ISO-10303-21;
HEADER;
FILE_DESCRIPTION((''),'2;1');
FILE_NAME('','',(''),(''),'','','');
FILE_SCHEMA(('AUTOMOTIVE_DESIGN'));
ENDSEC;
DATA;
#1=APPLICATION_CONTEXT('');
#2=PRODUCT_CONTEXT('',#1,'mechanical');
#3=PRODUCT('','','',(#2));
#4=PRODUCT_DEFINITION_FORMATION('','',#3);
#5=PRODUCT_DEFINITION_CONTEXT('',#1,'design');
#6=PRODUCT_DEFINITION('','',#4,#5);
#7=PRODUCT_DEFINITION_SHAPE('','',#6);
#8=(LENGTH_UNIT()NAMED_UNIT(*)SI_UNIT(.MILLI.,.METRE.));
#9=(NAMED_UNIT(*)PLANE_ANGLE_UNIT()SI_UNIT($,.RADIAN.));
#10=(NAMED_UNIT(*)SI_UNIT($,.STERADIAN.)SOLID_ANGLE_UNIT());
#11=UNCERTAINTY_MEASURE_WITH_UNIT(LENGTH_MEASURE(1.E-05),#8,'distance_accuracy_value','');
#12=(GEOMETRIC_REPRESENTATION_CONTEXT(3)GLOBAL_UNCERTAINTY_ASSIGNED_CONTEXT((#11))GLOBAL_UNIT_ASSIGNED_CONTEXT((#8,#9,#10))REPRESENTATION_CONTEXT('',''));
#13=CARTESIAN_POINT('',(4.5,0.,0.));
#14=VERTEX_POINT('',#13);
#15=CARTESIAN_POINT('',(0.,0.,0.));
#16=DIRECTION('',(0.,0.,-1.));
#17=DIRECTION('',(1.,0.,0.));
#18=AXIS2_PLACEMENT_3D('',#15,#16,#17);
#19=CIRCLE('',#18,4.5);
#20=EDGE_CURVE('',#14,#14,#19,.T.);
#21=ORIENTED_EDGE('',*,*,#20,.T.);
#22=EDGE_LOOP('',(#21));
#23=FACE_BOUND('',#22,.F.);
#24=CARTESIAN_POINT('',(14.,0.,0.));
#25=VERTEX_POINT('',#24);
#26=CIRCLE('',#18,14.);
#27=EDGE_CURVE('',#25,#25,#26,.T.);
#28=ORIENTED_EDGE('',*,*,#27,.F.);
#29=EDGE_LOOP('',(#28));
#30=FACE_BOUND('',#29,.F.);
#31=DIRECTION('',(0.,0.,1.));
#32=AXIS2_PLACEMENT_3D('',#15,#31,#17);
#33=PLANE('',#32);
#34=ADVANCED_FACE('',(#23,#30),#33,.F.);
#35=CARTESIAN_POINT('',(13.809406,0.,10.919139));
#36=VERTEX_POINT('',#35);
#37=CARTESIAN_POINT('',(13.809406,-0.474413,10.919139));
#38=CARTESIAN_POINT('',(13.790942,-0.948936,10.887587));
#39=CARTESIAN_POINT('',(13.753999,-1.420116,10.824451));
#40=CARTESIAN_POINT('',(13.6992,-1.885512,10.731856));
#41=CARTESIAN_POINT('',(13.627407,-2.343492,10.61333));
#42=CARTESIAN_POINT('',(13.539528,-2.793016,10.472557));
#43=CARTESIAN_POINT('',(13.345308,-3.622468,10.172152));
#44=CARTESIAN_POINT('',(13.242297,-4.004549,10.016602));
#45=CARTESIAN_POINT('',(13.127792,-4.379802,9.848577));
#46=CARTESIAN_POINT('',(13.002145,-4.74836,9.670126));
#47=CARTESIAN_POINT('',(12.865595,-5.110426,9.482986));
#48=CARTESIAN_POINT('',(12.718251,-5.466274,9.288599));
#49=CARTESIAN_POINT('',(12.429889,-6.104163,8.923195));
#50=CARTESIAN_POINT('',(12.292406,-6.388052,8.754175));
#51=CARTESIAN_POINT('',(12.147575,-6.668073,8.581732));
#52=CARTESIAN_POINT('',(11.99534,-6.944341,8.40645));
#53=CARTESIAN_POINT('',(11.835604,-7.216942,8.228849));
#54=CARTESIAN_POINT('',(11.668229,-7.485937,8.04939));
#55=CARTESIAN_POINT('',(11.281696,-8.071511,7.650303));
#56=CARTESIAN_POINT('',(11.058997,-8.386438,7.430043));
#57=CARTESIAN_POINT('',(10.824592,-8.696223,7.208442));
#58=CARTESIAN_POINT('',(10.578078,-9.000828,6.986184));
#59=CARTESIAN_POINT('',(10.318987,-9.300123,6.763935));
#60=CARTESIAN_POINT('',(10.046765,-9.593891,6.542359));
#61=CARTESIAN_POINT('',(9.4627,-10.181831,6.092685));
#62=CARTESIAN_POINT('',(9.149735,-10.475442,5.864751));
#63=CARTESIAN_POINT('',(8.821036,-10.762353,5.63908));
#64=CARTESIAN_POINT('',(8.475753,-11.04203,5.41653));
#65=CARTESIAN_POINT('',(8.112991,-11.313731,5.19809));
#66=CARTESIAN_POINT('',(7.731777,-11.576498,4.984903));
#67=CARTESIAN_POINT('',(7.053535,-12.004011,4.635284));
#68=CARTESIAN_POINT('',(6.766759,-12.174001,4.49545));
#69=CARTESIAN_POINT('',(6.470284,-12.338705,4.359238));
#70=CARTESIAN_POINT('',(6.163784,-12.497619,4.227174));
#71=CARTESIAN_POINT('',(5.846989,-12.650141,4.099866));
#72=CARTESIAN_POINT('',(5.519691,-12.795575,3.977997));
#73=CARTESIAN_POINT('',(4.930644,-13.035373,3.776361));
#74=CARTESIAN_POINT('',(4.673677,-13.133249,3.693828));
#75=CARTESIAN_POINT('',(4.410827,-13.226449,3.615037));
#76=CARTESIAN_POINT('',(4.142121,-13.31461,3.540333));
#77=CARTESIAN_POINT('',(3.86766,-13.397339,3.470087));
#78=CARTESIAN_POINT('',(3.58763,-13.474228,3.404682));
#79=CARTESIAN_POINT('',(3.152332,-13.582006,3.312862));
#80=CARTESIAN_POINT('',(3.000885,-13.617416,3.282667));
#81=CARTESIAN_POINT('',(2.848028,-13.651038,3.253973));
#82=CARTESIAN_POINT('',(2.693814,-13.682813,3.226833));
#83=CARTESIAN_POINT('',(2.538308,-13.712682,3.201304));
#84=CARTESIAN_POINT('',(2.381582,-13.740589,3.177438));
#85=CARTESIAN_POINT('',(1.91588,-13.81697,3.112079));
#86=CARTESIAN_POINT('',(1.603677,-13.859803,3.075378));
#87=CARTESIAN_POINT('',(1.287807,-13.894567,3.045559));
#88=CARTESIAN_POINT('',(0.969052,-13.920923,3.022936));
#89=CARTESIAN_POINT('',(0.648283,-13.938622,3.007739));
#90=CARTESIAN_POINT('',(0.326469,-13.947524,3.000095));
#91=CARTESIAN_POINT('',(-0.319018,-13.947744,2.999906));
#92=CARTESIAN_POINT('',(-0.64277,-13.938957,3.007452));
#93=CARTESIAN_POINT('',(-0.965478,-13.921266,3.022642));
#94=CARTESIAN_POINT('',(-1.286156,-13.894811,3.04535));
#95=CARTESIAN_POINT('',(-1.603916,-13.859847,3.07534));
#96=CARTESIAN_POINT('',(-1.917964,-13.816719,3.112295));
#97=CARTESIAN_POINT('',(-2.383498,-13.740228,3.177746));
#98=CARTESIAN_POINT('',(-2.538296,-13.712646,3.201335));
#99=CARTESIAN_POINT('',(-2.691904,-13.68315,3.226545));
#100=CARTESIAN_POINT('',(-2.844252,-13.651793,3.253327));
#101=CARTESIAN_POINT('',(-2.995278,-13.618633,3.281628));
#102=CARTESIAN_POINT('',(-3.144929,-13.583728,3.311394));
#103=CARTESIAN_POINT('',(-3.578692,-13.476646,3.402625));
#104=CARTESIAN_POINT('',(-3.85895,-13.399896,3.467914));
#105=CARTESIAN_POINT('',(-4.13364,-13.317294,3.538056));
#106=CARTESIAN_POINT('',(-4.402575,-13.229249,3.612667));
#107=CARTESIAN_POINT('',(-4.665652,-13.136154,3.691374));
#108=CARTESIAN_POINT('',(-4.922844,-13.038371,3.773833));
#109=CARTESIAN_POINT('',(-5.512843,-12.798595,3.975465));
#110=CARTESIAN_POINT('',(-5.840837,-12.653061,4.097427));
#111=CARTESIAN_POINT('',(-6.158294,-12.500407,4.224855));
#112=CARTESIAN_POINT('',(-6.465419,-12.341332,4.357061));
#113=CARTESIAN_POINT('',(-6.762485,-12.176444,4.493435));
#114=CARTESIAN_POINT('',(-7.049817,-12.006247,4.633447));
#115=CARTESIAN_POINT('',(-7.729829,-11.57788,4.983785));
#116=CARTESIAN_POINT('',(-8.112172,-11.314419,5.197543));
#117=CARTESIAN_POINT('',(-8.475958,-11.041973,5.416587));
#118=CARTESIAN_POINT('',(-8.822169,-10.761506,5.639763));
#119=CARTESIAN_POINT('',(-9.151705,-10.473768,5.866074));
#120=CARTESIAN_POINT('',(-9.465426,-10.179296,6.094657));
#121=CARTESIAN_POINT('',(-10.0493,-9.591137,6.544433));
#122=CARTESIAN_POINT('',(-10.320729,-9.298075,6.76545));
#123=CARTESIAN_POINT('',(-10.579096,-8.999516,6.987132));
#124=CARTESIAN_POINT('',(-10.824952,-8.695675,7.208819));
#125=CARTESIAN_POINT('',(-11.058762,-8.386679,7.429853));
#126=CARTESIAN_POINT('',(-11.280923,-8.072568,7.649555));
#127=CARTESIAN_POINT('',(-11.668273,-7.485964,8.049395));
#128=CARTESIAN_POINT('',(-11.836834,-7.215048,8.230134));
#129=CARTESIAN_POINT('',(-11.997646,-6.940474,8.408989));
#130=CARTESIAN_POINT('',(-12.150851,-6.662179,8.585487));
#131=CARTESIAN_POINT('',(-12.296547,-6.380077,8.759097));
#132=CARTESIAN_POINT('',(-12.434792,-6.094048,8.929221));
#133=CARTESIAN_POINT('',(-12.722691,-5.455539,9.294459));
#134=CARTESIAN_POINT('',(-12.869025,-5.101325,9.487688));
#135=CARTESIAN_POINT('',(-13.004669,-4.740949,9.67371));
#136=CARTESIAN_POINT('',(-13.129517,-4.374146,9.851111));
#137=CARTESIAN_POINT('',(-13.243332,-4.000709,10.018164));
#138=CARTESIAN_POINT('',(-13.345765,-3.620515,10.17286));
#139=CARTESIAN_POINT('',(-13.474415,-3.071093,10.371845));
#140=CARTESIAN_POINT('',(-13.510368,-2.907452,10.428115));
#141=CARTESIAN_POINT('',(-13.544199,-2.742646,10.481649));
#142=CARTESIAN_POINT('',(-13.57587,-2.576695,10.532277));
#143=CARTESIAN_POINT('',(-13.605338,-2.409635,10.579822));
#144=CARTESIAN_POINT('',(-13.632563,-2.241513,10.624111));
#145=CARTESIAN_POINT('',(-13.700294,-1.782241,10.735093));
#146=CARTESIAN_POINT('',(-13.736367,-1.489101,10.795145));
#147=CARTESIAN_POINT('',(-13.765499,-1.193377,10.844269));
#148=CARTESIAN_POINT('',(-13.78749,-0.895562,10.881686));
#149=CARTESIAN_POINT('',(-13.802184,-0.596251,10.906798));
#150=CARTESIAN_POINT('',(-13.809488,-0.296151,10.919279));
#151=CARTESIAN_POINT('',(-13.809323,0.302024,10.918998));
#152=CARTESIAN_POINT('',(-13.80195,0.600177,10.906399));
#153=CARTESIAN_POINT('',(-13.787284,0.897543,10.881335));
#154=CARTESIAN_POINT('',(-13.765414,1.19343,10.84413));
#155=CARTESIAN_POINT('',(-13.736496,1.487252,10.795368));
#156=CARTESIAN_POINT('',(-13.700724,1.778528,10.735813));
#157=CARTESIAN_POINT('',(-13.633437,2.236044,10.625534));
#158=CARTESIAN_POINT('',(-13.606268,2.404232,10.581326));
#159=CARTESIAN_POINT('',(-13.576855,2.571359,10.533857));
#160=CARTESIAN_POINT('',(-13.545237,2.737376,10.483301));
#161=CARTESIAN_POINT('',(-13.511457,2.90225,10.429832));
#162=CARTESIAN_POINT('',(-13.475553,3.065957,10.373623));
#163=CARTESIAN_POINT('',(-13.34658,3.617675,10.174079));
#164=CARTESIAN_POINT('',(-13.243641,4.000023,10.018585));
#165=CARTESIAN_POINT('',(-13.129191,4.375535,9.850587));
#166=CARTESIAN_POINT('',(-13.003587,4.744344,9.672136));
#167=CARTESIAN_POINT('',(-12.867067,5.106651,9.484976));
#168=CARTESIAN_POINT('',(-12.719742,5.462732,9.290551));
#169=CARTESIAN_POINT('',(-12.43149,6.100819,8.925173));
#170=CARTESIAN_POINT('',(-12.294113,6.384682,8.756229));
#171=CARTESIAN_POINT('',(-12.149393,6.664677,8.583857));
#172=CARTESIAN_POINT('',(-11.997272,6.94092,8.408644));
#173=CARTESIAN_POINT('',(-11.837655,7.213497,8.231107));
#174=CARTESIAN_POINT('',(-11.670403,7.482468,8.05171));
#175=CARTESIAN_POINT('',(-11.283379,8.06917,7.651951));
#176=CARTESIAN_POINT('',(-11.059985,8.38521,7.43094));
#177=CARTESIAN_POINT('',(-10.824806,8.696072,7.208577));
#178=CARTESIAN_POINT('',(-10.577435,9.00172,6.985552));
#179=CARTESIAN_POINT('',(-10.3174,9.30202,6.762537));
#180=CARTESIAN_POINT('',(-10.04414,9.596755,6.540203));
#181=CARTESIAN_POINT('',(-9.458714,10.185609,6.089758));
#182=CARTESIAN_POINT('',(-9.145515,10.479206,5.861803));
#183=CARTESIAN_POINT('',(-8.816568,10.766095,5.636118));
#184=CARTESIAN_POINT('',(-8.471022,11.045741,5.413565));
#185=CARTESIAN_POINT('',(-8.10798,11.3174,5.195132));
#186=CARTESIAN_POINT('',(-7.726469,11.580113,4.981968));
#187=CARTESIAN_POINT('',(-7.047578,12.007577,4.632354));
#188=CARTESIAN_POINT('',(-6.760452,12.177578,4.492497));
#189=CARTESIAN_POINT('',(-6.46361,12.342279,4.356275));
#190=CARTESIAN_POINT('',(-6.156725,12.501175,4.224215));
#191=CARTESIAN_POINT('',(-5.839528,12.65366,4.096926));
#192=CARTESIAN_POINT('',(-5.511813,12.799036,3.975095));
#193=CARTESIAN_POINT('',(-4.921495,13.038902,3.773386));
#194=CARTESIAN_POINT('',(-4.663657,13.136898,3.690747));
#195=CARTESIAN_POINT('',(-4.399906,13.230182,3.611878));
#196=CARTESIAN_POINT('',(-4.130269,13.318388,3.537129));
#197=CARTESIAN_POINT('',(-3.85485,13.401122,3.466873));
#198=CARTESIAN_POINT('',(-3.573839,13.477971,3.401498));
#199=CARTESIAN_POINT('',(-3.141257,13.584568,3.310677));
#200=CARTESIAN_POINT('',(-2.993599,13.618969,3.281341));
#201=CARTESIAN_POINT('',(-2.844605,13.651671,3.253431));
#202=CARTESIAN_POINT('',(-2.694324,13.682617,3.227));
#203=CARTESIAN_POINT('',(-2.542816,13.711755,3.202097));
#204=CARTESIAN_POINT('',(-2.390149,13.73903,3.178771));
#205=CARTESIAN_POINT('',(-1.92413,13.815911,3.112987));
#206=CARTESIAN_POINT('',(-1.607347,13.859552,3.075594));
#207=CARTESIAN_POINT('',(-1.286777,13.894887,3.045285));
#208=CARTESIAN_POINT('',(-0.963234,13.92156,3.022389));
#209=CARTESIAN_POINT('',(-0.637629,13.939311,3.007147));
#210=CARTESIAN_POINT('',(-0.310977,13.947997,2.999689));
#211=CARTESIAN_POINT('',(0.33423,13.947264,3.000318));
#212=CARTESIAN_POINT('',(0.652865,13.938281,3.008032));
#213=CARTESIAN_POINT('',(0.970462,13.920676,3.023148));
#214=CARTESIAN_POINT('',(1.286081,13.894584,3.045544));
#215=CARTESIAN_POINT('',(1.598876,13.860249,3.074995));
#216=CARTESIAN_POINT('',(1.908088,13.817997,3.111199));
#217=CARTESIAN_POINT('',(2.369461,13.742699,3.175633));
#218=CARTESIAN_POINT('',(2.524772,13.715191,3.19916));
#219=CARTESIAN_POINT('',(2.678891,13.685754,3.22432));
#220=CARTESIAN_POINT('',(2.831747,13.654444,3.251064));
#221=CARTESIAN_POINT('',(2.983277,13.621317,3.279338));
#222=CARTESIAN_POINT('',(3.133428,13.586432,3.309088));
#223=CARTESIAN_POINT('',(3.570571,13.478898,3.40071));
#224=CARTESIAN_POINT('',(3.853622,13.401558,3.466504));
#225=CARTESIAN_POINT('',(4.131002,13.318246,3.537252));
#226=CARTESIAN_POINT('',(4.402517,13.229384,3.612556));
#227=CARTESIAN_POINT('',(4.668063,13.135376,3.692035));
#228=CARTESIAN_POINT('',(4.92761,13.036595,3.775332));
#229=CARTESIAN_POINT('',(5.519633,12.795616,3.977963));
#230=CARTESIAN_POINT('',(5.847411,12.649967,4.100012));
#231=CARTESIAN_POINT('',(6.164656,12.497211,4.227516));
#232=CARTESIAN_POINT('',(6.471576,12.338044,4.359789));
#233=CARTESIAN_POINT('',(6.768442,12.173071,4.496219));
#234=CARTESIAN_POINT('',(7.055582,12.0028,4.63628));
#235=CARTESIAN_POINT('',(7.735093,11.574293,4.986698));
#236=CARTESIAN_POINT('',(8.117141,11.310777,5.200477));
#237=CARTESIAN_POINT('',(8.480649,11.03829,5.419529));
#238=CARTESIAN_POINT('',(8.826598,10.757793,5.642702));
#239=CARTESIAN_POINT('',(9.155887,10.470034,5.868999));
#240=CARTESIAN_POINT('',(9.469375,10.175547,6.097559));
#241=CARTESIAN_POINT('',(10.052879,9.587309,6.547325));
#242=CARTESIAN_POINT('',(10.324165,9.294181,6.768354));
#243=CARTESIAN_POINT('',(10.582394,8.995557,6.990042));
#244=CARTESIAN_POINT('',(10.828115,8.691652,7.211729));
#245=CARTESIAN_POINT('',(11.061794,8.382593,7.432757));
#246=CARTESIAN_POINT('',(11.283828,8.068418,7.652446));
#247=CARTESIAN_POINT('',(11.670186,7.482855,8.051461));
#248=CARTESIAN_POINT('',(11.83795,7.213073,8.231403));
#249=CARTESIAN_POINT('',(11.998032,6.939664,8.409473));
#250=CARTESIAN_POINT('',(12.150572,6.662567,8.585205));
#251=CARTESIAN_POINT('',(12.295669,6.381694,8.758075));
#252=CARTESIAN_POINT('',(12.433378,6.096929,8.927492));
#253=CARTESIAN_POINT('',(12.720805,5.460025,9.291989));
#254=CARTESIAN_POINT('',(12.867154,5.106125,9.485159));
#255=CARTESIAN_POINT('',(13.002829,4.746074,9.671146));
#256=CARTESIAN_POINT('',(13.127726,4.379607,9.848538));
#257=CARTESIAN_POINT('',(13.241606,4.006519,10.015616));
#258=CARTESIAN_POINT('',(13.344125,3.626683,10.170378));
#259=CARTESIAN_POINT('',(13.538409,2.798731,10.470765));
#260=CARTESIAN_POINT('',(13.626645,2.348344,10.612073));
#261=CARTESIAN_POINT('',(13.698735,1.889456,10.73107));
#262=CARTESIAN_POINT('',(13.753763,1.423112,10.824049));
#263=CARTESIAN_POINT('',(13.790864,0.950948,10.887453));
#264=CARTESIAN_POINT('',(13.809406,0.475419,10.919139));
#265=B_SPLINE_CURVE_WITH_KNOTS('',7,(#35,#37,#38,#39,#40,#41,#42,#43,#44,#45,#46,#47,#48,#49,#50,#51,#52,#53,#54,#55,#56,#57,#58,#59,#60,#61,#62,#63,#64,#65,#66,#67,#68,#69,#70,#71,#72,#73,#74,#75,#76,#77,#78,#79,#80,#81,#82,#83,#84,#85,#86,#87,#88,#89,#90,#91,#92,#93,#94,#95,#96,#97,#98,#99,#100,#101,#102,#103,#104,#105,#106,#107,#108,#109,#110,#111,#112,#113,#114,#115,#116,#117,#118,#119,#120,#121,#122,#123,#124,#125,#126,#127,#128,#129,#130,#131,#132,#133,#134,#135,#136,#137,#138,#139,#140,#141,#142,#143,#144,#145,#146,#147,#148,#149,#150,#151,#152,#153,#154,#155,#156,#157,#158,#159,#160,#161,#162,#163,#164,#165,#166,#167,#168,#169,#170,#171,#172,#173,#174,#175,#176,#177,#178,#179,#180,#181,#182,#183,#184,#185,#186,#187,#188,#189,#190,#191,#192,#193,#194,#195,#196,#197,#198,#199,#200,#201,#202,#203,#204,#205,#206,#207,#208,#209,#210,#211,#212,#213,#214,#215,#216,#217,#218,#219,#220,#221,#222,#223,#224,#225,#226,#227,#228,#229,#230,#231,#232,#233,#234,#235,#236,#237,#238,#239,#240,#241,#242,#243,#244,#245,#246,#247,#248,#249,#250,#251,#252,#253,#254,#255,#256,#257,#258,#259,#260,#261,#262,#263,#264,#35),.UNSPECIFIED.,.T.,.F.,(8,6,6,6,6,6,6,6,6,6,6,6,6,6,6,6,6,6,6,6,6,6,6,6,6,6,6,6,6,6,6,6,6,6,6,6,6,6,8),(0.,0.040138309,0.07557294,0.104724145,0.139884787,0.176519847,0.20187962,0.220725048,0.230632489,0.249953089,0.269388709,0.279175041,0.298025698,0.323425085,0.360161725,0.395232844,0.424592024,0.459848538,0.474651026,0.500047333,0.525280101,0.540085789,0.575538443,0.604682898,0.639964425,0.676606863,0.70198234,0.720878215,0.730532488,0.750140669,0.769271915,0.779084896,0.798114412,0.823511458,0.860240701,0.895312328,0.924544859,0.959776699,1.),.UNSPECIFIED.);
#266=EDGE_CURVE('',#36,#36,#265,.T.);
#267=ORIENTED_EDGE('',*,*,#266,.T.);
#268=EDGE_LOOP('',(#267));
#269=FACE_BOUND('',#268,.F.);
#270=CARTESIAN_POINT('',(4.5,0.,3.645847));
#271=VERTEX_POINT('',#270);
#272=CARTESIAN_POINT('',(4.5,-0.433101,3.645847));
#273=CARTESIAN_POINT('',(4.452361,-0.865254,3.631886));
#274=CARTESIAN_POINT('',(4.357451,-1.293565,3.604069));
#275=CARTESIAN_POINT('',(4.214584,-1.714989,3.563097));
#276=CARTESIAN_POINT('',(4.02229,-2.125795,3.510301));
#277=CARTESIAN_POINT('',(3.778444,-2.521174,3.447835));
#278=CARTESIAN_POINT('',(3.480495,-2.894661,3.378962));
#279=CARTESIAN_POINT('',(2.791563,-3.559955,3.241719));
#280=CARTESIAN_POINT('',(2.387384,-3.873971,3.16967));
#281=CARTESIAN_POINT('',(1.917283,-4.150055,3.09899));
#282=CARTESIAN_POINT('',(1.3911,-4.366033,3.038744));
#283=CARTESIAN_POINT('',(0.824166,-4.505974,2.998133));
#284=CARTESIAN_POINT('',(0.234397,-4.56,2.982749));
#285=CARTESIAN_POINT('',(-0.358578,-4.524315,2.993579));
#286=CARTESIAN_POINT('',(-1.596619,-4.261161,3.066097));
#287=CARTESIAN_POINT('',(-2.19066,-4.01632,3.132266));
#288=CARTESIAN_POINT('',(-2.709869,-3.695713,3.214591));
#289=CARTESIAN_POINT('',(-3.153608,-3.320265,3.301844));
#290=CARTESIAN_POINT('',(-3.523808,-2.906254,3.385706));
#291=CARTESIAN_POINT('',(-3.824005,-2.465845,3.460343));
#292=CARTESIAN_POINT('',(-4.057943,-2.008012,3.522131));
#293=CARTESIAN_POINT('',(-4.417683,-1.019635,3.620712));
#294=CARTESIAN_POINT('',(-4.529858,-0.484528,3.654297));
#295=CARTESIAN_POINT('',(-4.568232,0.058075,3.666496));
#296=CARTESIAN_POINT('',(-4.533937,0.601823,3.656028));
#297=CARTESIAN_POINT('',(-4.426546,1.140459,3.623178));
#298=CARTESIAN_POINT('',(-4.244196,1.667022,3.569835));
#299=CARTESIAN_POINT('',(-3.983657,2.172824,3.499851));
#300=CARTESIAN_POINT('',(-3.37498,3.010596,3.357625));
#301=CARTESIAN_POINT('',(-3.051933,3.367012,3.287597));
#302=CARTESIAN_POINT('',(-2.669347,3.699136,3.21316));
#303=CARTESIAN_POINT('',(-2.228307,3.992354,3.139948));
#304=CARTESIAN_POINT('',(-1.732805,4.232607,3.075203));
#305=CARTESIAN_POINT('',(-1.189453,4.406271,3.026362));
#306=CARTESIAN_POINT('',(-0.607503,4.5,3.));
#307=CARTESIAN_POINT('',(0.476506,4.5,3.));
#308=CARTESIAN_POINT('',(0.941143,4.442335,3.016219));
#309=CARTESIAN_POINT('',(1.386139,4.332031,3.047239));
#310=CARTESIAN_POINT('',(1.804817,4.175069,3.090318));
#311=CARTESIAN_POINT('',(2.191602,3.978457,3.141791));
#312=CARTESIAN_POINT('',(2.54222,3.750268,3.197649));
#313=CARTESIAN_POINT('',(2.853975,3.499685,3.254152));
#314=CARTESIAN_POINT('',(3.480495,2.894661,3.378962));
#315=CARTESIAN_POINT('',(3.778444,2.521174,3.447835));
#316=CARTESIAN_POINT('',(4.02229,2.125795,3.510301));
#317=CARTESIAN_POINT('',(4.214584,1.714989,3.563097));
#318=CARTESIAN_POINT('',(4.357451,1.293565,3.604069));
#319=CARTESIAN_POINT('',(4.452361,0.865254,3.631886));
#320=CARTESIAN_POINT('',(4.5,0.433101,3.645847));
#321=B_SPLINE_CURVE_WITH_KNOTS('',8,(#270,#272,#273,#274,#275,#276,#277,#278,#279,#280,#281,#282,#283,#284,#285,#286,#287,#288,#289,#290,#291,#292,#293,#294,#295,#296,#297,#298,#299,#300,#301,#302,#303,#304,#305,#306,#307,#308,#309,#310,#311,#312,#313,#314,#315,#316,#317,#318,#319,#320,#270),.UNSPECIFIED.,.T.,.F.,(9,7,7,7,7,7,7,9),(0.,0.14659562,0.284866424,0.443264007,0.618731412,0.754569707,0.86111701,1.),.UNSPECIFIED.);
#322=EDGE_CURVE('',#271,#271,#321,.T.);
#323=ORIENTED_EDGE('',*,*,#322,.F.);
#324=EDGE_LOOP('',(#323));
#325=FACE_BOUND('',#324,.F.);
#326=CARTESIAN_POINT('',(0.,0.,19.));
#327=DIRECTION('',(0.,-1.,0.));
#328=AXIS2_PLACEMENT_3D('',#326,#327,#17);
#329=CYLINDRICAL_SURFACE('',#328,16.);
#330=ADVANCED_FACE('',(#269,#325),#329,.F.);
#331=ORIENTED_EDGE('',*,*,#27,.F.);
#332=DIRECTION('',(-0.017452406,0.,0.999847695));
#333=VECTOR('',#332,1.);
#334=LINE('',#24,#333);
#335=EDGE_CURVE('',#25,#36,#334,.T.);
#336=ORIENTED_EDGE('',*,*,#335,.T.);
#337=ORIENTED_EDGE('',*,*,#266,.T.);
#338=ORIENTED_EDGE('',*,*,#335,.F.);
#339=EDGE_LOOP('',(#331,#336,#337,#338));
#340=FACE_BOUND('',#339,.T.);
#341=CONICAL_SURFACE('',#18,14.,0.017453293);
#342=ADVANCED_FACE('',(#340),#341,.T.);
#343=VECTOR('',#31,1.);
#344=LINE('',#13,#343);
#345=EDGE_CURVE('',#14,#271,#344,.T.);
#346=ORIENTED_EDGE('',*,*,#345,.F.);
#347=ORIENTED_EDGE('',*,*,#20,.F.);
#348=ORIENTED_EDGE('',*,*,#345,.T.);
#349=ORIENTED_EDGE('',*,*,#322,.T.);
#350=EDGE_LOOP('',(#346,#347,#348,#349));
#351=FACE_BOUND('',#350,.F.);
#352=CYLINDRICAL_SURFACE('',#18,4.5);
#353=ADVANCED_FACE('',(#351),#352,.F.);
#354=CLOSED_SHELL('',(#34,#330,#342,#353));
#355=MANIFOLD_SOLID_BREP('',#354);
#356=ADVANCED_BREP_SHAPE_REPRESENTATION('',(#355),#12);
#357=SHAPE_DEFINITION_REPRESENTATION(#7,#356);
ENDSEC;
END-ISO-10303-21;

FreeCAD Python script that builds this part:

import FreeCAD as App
import Part
import Sketcher

doc = App.newDocument("Part")
body = doc.addObject("PartDesign::Body", "Body")

# Sketch on XY plane
sketch1 = body.newObject("Sketcher::SketchObject", "Sketch")
sketch1.AttachmentSupport = (doc.getObject("XY_Plane"), [""])
sketch1.MapMode = "FlatFace"
sketch1.addGeometry(Part.Circle(App.Vector(0, 0, 0), App.Vector(0, 0, 1), 14), False)
sketch1.addConstraint([
    Sketcher.Constraint("Coincident", 0, 3, -1, 1),
    Sketcher.Constraint("Diameter", 0, 28.0),
])
pad1 = body.newObject("PartDesign::Pad", "Pad")
pad1.Profile = sketch1
pad1.Length = 12
pad1.TaperAngle = -1

# Sketch on XZ plane
sketch2 = body.newObject("Sketcher::SketchObject", "Sketch001")
sketch2.AttachmentSupport = (doc.getObject("XZ_Plane"), [""])
sketch2.MapMode = "FlatFace"
sketch2.addGeometry(Part.Circle(App.Vector(0, 19, 0), App.Vector(0, 0, 1), 16), False)
sketch2.addConstraint([
    Sketcher.Constraint("PointOnObject", 0, 3, -2),
    Sketcher.Constraint("Diameter", 0, 32.0),
    Sketcher.Constraint("DistanceY", -1, 1, 0, 3, 19.0),
])
pocket1 = body.newObject("PartDesign::Pocket", "Pocket")
pocket1.Profile = sketch2
pocket1.Length = 32
pocket1.Midplane = True

# Sketch on XY plane
sketch3 = body.newObject("Sketcher::SketchObject", "Sketch002")
sketch3.AttachmentSupport = (doc.getObject("XY_Plane"), [""])
sketch3.MapMode = "FlatFace"
sketch3.addGeometry(Part.Circle(App.Vector(0, 0, 0), App.Vector(0, 0, 1), 4.5), False)
sketch3.addConstraint([
    Sketcher.Constraint("Coincident", 0, 3, -1, 1),
    Sketcher.Constraint("Diameter", 0, 9.0),
])
pocket2 = body.newObject("PartDesign::Pocket", "Pocket001")
pocket2.Profile = sketch3
pocket2.Length = 5
pocket2.Reversed = True

doc.recompute()
